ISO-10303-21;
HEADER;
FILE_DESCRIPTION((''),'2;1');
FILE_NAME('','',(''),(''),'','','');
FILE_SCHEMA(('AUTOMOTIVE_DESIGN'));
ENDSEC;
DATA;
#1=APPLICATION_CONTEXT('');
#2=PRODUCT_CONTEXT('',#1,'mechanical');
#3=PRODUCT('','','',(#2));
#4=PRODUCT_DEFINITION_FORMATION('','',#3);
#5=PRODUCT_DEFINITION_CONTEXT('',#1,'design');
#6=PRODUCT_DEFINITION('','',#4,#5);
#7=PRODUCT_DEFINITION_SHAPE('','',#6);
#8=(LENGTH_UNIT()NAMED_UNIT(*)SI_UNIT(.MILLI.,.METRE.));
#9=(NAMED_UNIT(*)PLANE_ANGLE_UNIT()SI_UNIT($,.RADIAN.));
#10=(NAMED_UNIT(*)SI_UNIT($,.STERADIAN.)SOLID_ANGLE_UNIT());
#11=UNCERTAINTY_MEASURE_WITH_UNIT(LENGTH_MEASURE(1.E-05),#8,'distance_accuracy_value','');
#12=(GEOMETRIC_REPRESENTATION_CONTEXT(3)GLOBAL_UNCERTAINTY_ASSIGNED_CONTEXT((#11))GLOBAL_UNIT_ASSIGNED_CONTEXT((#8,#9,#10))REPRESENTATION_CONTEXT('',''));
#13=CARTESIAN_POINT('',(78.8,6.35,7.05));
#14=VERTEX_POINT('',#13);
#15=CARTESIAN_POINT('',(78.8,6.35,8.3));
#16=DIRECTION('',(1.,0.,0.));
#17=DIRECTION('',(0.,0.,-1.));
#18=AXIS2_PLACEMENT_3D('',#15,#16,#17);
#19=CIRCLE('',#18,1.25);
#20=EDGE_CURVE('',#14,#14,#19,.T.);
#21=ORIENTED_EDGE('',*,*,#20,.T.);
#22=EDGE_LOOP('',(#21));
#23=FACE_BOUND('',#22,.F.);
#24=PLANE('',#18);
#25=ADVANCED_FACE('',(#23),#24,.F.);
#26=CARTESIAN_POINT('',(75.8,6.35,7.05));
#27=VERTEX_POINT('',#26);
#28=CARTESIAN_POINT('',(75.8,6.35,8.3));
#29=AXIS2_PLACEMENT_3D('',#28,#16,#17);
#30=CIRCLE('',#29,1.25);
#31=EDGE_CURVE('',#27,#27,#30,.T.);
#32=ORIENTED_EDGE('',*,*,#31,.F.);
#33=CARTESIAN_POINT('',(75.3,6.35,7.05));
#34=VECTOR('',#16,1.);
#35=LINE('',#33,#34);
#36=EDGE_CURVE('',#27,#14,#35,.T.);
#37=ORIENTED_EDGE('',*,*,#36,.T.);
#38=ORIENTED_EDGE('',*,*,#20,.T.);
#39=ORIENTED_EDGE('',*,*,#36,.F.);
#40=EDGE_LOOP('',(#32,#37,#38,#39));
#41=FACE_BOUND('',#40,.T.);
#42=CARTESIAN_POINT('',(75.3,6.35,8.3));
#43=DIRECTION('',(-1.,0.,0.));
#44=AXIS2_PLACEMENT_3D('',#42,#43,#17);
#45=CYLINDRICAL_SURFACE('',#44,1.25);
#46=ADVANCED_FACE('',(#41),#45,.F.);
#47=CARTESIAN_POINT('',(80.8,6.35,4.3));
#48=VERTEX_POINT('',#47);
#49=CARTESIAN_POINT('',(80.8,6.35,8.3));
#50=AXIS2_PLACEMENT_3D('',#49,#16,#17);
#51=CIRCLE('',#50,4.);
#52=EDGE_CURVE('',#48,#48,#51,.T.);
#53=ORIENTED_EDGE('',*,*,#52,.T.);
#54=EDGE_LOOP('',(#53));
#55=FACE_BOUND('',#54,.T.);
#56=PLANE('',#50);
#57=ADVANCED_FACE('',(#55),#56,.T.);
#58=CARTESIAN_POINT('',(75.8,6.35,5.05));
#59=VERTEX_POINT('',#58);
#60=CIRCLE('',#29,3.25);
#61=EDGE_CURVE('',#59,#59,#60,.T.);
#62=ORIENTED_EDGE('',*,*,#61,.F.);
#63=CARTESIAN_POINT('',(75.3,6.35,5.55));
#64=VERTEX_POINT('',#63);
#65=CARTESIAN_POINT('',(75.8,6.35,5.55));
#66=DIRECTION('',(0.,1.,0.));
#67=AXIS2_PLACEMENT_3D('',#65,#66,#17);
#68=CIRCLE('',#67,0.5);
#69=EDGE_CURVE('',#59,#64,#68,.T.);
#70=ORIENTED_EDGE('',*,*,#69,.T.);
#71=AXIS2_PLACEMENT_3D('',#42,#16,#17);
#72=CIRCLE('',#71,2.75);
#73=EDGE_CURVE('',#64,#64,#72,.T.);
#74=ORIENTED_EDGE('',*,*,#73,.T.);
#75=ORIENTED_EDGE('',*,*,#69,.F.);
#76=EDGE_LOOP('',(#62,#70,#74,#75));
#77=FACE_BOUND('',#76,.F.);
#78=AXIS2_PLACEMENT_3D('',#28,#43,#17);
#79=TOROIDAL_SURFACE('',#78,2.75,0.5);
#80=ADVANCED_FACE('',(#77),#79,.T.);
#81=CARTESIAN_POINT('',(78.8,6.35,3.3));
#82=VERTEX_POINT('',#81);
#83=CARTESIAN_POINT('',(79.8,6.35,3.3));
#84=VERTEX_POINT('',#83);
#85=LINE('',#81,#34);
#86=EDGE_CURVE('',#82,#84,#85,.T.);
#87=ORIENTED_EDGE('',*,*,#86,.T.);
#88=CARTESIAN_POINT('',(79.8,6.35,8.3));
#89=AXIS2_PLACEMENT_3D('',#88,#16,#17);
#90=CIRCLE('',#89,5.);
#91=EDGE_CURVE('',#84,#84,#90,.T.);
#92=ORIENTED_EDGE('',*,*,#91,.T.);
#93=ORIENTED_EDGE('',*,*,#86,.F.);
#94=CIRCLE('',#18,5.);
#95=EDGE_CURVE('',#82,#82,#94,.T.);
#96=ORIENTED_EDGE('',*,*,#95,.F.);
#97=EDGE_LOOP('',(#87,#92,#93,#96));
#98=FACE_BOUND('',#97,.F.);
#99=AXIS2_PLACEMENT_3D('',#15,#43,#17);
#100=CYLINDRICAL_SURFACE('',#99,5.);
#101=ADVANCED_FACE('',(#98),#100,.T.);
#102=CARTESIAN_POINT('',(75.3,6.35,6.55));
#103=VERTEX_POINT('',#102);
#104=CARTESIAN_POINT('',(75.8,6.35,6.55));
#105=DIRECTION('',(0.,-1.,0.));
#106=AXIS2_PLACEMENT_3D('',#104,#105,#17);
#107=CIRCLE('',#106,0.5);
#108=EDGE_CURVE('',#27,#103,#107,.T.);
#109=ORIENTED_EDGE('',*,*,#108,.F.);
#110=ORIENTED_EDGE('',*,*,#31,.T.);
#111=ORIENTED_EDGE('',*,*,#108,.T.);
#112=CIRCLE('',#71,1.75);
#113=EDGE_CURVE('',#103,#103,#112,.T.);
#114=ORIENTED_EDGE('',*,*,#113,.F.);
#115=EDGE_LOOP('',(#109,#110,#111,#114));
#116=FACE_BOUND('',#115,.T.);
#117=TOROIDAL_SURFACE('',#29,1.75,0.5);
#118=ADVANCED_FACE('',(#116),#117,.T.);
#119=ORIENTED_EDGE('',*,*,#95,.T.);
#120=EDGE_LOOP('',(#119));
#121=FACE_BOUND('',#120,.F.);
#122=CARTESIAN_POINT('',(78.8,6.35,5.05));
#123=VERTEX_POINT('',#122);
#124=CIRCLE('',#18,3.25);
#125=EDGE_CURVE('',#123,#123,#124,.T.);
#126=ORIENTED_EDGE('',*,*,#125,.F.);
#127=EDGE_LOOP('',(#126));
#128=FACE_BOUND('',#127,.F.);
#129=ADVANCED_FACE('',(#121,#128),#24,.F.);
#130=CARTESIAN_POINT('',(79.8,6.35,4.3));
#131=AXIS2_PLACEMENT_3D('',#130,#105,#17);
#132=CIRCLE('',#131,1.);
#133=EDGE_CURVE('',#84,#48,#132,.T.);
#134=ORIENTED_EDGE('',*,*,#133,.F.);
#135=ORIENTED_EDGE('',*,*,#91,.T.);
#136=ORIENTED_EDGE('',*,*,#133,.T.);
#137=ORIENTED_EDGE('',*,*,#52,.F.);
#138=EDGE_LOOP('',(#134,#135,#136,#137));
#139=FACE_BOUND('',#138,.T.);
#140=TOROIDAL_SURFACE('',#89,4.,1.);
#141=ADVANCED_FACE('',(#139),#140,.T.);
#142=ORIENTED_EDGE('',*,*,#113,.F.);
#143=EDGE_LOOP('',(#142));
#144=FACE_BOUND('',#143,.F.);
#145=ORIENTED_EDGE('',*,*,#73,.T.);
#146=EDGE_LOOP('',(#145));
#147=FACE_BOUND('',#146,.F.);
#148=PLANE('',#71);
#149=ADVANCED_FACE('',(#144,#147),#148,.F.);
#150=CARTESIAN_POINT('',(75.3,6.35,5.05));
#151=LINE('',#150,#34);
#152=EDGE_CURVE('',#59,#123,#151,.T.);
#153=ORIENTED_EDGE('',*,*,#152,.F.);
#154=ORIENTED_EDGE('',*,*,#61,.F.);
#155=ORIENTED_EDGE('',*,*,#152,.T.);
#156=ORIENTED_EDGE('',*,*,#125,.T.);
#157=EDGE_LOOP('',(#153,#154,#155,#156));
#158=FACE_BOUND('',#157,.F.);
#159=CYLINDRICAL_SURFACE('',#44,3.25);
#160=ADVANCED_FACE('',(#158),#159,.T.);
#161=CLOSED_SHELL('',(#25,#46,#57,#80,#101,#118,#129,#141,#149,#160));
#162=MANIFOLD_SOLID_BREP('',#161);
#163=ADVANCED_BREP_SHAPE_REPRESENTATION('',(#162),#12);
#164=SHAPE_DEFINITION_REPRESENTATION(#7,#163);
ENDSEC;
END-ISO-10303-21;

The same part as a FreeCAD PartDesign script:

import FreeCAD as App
import Part
import Sketcher
from FreeCAD import Vector
Q = App.Units.Quantity


def edges_at(feature, points):
    """Names of the edges that pass closest to the given points."""
    edges = feature.Shape.Edges
    near = lambda p: min(range(len(edges)), key=lambda i: edges[i].distToShape(Part.Vertex(*p))[0])
    return sorted({f"Edge{near(p) + 1}" for p in points})

doc = App.newDocument("Part")
body = doc.addObject("PartDesign::Body", "Body")

# Sketch on YZ plane
sketch1 = body.newObject("Sketcher::SketchObject", "Sketch")
sketch1.AttachmentSupport = (doc.getObject("YZ_Plane"), [""])
sketch1.MapMode = "FlatFace"
sketch1.AttachmentOffset = App.Placement(Vector(0, 0, 75.3), App.Rotation())
sketch1.addGeometry([
    Part.Circle(Vector(6.35, 8.3, 0), Vector(0, 0, 1), 3.25),
    Part.Circle(Vector(6.35, 8.3, 0), Vector(0, 0, 1), 1.25),
], False)
sketch1.addConstraint([
    Sketcher.Constraint("Coincident", 1, 3, 0, 3),
    Sketcher.Constraint("Diameter", 0, Q("6.5 mm")),
    Sketcher.Constraint("Diameter", 1, Q("2.5 mm")),
    Sketcher.Constraint("DistanceY", -1, 1, 0, 3, Q("8.3 mm")),
    Sketcher.Constraint("DistanceX", -1, 1, 0, 3, Q("6.35 mm")),
])
pad1 = body.newObject("PartDesign::Pad", "Pad")
pad1.Profile = sketch1
pad1.Length = 3.5
doc.recompute()

fillet = body.newObject("PartDesign::Fillet", "Fillet")
fillet.Base = (pad1, edges_at(pad1, [(75.3, 6.35, 11.55), (75.3, 6.35, 9.55)]))
fillet.Radius = 0.5
body2 = doc.addObject("PartDesign::Body", "Body001")

# Sketch on YZ plane
sketch2 = body2.newObject("Sketcher::SketchObject", "Sketch001")
sketch2.AttachmentSupport = (doc.getObject("YZ_Plane001"), [""])
sketch2.MapMode = "FlatFace"
sketch2.AttachmentOffset = App.Placement(Vector(0, 0, 78.8), App.Rotation())
sketch2.addGeometry(Part.Circle(Vector(6.35, 8.3, 0), Vector(0, 0, 1), 5), False)
sketch2.addConstraint([
    Sketcher.Constraint("Diameter", 0, Q("10 mm")),
    Sketcher.Constraint("DistanceY", -1, 1, 0, 3, Q("8.3 mm")),
    Sketcher.Constraint("DistanceX", -1, 1, 0, 3, Q("6.35 mm")),
])
pad2 = body2.newObject("PartDesign::Pad", "Pad001")
pad2.Profile = sketch2
pad2.Length = 2
doc.recompute()

fillet2 = body2.newObject("PartDesign::Fillet", "Fillet001")
fillet2.Base = (pad2, edges_at(pad2, [(80.8, 6.35, 13.3)]))
fillet2.Radius = 1
doc.recompute()

boolean = body2.newObject("PartDesign::Boolean", "Boolean")
boolean.Type = "Fuse"
boolean.addObjects([body])

doc.recompute()
